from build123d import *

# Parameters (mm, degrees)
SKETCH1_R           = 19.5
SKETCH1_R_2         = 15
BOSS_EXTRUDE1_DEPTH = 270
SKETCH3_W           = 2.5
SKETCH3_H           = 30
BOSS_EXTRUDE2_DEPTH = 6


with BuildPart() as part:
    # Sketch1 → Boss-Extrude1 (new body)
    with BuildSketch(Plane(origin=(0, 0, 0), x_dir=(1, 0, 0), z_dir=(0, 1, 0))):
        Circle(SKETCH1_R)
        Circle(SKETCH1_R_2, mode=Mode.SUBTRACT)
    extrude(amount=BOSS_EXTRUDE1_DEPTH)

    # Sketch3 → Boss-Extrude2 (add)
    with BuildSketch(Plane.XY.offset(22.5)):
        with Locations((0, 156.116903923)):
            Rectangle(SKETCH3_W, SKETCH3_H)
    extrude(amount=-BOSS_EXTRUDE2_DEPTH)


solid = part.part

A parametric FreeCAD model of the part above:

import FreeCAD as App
import Part
import Sketcher
from FreeCAD import Vector


def add_polygon(sketch, points):
    """Adds a closed chain of lines whose ends are joined by coincident constraints."""
    first, n = sketch.GeometryCount, len(points)
    for a, b in zip(points, points[1:] + points[:1]):
        sketch.addGeometry(Part.LineSegment(App.Vector(*a, 0), App.Vector(*b, 0)), False)
    for i in range(n):
        sketch.addConstraint(Sketcher.Constraint("Coincident", first + i, 2, first + (i + 1) % n, 1))

doc = App.newDocument("Part")
body = doc.addObject("PartDesign::Body", "Body")

sketch1 = doc.addObject("Sketcher::SketchObject", "Sketch")
body.addObject(sketch1)
sketch1.AttachmentSupport = (doc.XZ_Plane, [""])
sketch1.MapMode = "FlatFace"
sketch1.addGeometry(Part.Circle(Vector(0, 0, 0), Vector(0, 0, 1), 20), False)
sketch1.addGeometry(Part.Circle(Vector(0, 0, 0), Vector(0, 0, 1), 15), False)
sketch1.addConstraint(Sketcher.Constraint("Coincident", 0, 3, -1, 1))
sketch1.addConstraint(Sketcher.Constraint("Coincident", 1, 3, -1, 1))
sketch1.addConstraint(Sketcher.Constraint("Diameter", 0, 39.0))
sketch1.addConstraint(Sketcher.Constraint("Diameter", 1, 30.0))
pad1 = doc.addObject("PartDesign::Pad", "Pad")
body.addObject(pad1)
pad1.Profile = sketch1
pad1.Length = 270
pad1.Reversed = True

sketch2 = doc.addObject("Sketcher::SketchObject", "Sketch001")
body.addObject(sketch2)
sketch2.AttachmentSupport = (doc.XY_Plane, [""])
sketch2.MapMode = "FlatFace"
sketch2.AttachmentOffset = App.Placement(Vector(0, 0, 22.5), App.Rotation())
add_polygon(sketch2, [(-1.2, 171.1), (-1.2, 141.1), (1.2, 141.1), (1.2, 171.1)])
sketch2.addConstraint(Sketcher.Constraint("Vertical", 0))
sketch2.addConstraint(Sketcher.Constraint("Horizontal", 1))
sketch2.addConstraint(Sketcher.Constraint("Vertical", 2))
sketch2.addConstraint(Sketcher.Constraint("Horizontal", 3))
sketch2.addConstraint(Sketcher.Constraint("DistanceY", 0, 2, 0, 1, 30.0))
sketch2.addConstraint(Sketcher.Constraint("DistanceX", 1, 1, 1, 2, 2.5))
sketch2.addConstraint(Sketcher.Constraint("DistanceX", 0, 2, -1, 1, 1.25))
sketch2.addConstraint(Sketcher.Constraint("DistanceY", -1, 1, 0, 2, 141.116904))
pad2 = doc.addObject("PartDesign::Pad", "Pad001")
body.addObject(pad2)
pad2.Profile = sketch2
pad2.Length = 6
pad2.Reversed = True

doc.recompute()
